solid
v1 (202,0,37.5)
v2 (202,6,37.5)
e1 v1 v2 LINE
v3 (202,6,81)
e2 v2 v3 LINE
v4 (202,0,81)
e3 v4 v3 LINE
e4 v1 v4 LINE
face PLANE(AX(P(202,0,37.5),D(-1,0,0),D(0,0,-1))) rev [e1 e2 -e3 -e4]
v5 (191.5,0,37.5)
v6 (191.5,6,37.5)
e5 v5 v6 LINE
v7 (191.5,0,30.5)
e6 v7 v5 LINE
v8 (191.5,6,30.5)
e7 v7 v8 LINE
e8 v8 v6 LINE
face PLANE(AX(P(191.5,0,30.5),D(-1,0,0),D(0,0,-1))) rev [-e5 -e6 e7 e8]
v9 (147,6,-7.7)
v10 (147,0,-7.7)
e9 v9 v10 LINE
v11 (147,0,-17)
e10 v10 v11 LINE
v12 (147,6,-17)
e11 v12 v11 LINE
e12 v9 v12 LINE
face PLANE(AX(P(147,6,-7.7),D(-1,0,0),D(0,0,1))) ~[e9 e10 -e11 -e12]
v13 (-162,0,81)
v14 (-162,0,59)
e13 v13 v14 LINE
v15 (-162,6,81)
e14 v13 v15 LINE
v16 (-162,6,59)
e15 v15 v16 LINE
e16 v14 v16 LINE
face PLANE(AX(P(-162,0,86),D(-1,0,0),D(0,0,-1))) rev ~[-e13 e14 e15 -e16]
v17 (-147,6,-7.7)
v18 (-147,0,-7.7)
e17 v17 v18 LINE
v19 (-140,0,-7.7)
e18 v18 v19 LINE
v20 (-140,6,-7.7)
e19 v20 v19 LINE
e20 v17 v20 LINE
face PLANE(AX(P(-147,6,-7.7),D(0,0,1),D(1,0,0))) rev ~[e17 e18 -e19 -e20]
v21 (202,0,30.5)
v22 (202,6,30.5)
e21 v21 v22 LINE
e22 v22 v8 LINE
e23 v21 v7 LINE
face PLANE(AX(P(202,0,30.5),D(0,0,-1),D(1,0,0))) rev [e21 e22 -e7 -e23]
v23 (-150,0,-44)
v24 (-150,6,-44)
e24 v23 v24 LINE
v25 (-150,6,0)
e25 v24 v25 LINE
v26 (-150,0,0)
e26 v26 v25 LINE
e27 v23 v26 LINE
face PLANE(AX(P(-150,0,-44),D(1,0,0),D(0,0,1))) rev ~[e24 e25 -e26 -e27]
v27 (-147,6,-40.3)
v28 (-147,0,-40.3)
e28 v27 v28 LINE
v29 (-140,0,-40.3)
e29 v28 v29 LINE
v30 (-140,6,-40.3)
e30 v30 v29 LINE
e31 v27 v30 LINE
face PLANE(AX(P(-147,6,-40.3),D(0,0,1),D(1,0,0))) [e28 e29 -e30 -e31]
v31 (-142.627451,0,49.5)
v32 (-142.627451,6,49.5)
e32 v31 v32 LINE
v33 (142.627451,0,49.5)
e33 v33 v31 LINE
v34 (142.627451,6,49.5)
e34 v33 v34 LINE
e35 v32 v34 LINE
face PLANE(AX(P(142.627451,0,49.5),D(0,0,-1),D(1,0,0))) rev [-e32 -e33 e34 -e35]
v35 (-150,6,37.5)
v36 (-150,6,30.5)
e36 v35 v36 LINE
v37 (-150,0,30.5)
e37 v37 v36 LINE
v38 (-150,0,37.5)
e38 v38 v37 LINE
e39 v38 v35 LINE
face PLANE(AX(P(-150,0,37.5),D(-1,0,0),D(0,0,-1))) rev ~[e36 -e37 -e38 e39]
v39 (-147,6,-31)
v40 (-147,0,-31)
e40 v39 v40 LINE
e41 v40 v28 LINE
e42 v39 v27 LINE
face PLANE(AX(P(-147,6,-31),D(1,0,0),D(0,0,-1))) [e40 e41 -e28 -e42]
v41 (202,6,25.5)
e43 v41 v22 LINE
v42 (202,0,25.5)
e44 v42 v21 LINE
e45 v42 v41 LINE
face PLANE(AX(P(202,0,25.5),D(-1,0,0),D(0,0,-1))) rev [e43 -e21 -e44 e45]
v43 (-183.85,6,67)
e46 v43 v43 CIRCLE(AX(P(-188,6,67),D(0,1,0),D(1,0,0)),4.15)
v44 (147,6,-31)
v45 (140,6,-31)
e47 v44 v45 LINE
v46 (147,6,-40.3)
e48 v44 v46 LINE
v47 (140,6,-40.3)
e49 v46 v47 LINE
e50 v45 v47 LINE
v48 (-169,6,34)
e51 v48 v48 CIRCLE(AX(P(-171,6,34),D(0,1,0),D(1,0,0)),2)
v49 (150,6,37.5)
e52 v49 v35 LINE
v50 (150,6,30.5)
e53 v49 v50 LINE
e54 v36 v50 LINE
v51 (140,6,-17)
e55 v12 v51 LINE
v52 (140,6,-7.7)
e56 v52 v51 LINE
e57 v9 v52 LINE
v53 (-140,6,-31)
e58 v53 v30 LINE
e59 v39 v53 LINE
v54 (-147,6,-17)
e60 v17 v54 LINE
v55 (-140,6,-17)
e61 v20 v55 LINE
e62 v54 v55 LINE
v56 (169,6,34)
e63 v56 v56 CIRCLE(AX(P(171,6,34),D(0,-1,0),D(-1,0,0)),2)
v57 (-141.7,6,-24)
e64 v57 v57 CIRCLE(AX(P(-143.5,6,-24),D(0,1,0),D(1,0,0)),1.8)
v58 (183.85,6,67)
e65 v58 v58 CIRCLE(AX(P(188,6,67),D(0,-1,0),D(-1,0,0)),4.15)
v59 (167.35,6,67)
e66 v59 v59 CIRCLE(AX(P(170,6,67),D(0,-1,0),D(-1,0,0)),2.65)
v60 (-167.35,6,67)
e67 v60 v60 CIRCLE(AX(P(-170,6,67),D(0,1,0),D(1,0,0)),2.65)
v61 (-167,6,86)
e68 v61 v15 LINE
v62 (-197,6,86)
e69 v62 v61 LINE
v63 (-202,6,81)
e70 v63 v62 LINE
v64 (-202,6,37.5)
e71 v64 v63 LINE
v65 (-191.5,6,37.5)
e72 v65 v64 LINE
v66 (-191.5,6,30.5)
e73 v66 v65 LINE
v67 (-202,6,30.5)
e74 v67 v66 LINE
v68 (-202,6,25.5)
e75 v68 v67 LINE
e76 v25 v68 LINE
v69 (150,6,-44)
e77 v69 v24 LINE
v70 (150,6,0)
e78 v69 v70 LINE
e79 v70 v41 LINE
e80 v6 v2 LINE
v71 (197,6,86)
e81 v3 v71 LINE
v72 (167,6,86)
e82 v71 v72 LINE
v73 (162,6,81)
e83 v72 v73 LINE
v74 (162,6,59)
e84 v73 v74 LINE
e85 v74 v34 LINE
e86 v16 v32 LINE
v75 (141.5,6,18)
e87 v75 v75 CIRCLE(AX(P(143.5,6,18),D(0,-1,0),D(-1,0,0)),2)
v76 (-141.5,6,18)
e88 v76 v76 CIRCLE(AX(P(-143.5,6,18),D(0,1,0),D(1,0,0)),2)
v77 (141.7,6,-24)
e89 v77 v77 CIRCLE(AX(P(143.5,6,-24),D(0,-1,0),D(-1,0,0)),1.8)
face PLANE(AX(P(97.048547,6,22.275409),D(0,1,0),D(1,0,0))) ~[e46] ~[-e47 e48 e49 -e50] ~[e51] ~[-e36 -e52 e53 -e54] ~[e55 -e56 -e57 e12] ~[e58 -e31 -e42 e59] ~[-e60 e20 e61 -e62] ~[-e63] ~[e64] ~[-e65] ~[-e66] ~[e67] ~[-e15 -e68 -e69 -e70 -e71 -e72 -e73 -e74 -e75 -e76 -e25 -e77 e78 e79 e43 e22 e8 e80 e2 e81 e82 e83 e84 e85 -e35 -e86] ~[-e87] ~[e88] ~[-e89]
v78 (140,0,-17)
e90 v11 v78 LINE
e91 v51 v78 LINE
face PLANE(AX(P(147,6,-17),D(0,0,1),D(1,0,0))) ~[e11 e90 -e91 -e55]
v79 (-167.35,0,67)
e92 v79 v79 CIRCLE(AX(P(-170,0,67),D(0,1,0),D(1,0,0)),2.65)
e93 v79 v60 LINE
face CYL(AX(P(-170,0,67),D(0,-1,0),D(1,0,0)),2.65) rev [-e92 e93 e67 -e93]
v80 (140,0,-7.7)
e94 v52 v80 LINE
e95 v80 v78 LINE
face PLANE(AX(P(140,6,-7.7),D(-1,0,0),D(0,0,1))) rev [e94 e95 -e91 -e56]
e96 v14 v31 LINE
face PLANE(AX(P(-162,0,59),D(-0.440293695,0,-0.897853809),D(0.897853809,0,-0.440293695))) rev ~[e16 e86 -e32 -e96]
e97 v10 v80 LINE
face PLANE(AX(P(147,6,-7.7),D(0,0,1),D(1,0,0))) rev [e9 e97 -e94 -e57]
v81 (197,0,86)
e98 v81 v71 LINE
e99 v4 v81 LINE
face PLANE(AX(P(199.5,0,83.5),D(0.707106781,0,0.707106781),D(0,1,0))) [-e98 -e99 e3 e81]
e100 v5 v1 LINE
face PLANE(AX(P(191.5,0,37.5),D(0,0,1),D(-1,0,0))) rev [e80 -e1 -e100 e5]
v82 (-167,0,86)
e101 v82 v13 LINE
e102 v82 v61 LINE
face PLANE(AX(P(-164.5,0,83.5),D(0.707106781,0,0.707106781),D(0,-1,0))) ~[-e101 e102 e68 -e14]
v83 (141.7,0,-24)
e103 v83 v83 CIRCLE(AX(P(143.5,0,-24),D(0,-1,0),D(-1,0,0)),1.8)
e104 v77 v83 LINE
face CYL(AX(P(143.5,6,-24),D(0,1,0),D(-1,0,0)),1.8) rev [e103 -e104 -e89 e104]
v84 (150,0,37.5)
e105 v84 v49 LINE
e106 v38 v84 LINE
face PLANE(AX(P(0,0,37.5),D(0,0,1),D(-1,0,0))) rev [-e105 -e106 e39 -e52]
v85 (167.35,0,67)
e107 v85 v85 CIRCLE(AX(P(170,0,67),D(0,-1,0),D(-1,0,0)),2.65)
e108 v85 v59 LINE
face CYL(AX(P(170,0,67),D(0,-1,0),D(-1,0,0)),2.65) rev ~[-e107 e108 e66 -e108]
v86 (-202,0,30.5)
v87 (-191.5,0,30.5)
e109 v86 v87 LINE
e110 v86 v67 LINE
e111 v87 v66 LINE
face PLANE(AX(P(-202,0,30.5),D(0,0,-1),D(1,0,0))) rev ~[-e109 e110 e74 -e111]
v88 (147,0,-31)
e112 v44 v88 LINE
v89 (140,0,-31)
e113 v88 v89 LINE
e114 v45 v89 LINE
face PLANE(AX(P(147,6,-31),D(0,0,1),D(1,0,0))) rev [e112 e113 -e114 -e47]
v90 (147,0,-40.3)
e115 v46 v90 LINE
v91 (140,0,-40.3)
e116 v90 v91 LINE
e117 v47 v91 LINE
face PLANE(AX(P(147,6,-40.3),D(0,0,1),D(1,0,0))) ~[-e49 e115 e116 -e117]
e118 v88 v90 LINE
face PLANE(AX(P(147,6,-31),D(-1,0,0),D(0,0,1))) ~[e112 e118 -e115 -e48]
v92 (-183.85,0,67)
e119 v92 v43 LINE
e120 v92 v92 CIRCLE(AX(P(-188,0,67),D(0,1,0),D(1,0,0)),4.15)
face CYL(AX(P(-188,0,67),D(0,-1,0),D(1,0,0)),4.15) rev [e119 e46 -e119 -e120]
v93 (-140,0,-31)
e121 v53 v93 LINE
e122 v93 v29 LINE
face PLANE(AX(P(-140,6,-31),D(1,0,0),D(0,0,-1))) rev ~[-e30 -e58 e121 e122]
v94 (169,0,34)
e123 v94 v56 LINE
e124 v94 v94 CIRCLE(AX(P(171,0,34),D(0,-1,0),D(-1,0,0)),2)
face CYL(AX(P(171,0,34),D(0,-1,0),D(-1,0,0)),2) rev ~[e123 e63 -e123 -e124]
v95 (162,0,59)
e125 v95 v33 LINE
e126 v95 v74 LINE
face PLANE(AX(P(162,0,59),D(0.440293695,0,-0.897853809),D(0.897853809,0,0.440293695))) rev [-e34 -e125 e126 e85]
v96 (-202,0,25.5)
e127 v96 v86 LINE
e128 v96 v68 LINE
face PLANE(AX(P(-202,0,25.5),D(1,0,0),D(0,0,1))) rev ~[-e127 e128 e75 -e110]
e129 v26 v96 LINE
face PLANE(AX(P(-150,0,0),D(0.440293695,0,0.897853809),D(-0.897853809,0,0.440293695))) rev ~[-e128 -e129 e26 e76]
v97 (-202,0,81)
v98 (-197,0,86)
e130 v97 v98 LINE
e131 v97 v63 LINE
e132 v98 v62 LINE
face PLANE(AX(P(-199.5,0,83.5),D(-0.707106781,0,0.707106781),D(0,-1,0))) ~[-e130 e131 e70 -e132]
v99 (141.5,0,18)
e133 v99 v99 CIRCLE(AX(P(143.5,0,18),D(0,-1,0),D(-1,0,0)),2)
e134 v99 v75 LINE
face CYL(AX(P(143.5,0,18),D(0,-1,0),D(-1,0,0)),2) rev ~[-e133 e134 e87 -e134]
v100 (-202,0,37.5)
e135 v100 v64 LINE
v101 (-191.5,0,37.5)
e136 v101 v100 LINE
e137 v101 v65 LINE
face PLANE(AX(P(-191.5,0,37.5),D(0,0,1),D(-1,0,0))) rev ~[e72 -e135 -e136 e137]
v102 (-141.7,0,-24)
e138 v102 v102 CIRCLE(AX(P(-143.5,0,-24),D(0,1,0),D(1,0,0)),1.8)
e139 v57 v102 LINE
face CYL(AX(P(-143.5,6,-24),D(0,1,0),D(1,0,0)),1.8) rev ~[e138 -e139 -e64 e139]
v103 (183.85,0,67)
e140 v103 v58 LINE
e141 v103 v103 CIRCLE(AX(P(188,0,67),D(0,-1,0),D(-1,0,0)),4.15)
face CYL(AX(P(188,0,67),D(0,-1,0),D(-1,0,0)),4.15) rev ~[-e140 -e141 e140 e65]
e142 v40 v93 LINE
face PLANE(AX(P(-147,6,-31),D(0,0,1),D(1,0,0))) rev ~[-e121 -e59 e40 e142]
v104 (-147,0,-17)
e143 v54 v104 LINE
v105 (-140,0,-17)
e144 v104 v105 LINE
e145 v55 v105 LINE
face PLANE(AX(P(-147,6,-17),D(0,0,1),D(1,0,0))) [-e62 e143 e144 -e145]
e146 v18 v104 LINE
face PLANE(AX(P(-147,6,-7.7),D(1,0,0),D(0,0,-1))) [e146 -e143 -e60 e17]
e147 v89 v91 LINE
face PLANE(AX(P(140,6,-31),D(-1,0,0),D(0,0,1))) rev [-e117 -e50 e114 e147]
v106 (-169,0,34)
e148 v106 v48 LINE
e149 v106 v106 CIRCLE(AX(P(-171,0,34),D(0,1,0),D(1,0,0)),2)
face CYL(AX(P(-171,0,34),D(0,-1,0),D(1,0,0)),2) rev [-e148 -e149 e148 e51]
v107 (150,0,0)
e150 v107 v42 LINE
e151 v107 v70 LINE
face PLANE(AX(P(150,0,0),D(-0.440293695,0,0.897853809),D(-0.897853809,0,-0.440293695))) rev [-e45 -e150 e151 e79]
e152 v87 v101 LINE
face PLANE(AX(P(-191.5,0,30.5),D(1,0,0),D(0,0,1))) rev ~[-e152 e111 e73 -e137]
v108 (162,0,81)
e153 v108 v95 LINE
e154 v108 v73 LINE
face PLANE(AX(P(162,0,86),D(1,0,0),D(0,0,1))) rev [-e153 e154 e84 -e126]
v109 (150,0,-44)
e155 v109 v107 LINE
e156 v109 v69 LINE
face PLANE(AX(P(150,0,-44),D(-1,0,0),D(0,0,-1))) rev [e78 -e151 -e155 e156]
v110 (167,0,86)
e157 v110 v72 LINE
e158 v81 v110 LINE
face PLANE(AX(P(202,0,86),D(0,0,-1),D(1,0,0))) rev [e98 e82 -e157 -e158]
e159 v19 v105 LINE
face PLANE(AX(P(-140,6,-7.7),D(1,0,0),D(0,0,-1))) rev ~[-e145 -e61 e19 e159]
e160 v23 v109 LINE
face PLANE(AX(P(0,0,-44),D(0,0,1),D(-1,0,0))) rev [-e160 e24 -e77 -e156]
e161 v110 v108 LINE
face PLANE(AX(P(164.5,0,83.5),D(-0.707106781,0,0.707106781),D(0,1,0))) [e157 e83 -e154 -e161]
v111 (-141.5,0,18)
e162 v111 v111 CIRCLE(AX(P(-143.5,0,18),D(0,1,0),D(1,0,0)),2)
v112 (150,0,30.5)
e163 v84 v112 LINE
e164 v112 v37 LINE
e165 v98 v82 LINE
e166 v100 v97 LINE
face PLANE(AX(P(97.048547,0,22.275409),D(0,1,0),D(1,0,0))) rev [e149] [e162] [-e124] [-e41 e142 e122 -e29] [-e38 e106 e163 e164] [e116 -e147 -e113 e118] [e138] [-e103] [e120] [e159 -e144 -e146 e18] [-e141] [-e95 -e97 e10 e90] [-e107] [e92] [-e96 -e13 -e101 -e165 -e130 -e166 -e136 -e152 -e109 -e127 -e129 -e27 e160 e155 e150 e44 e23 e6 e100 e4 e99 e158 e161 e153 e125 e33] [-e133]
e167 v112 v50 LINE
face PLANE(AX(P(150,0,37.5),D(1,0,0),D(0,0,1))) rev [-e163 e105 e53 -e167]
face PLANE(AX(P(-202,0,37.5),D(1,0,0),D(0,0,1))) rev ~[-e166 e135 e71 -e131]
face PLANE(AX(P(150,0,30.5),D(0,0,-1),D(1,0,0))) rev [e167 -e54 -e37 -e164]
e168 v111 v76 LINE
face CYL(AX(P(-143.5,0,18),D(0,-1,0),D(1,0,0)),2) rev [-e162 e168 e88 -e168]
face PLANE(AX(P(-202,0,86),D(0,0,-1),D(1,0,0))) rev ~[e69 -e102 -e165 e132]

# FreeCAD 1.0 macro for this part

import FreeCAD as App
import Part
import Sketcher
from FreeCAD import Vector
Q = App.Units.Quantity


def edges_at(feature, points):
    """Names of the edges that pass closest to the given points."""
    edges = feature.Shape.Edges
    near = lambda p: min(range(len(edges)), key=lambda i: edges[i].distToShape(Part.Vertex(*p))[0])
    return sorted({f"Edge{near(p) + 1}" for p in points})


def add_polygon(sketch, points):
    """Adds a closed chain of lines whose ends are joined by coincident constraints."""
    first, n = sketch.GeometryCount, len(points)
    for a, b in zip(points, points[1:] + points[:1]):
        sketch.addGeometry(Part.LineSegment(App.Vector(*a, 0), App.Vector(*b, 0)), False)
    for i in range(n):
        sketch.addConstraint(Sketcher.Constraint("Coincident", first + i, 2, first + (i + 1) % n, 1))

doc = App.newDocument("Part")
body = doc.addObject("PartDesign::Body", "Body")

# Sketch on XZ plane
sketch1 = body.newObject("Sketcher::SketchObject", "Sketch")
sketch1.AttachmentSupport = (doc.getObject("XZ_Plane"), [""])
sketch1.MapMode = "FlatFace"
add_polygon(sketch1, [(-150, 0), (-202, 25.5), (-202, 30.5), (-191.5, 30.5), (-191.5, 37.5), (-202, 37.5), (-202, 86), (-162, 86), (-162, 59), (-142.6, 49.5), (0, 49.5), (0, 37.5), (-150, 37.5), (-150, 30.5), (0, 30.5), (0, -44), (-150, -44)])  # lines 0-16
sketch1.addGeometry(Part.Circle(Vector(-188, 67, 0), Vector(0, 0, 1), 4.2), False)  # 17
sketch1.addGeometry(Part.Circle(Vector(-170, 67, 0), Vector(0, 0, 1), 2.6), False)  # 18
sketch1.addGeometry(Part.Circle(Vector(-171, 34, 0), Vector(0, 0, 1), 2), False)  # 19
sketch1.addGeometry(Part.Circle(Vector(-143.5, 18, 0), Vector(0, 0, 1), 2), False)  # 20
sketch1.addConstraint(Sketcher.Constraint("Vertical", 1))
sketch1.addConstraint(Sketcher.Constraint("Horizontal", 2))
sketch1.addConstraint(Sketcher.Constraint("Vertical", 3))
sketch1.addConstraint(Sketcher.Constraint("Horizontal", 4))
sketch1.addConstraint(Sketcher.Constraint("Vertical", 5))
sketch1.addConstraint(Sketcher.Constraint("Horizontal", 6))
sketch1.addConstraint(Sketcher.Constraint("Vertical", 7))
sketch1.addConstraint(Sketcher.Constraint("Horizontal", 9))
sketch1.addConstraint(Sketcher.Constraint("Vertical", 10))
sketch1.addConstraint(Sketcher.Constraint("Horizontal", 11))
sketch1.addConstraint(Sketcher.Constraint("Vertical", 12))
sketch1.addConstraint(Sketcher.Constraint("Horizontal", 13))
sketch1.addConstraint(Sketcher.Constraint("Vertical", 14))
sketch1.addConstraint(Sketcher.Constraint("Horizontal", 15))
sketch1.addConstraint(Sketcher.Constraint("Vertical", 16))
sketch1.addConstraint(Sketcher.Constraint("Equal", 19, 20))
sketch1.addConstraint(Sketcher.Constraint("PointOnObject", 9, 2, -2))
sketch1.addConstraint(Sketcher.Constraint("PointOnObject", 13, 2, -2))
sketch1.addConstraint(Sketcher.Constraint("PointOnObject", 16, 2, -1))
sketch1.addConstraint(Sketcher.Constraint("Parallel", 0, 8))
sketch1.addConstraint(Sketcher.Constraint("Horizontal", 17, 3, 18, 3))
sketch1.addConstraint(Sketcher.Constraint("Horizontal", 4, 2, 10, 2))
sketch1.addConstraint(Sketcher.Constraint("Horizontal", 2, 2, 12, 2))
sketch1.addConstraint(Sketcher.Constraint("Vertical", 1, 2, 4, 2))
sketch1.addConstraint(Sketcher.Constraint("Vertical", 12, 2, 15, 2))
sketch1.addConstraint(Sketcher.Constraint("Diameter", 19, Q("4 mm")))
sketch1.addConstraint(Sketcher.Constraint("Diameter", 17, Q("8.3 mm")))
sketch1.addConstraint(Sketcher.Constraint("Diameter", 18, Q("5.3 mm")))
sketch1.addConstraint(Sketcher.Constraint("DistanceX", 6, 1, 6, 2, Q("40 mm")))
sketch1.addConstraint(Sketcher.Constraint("DistanceX", 11, 2, 11, 1, Q("150 mm")))
sketch1.addConstraint(Sketcher.Constraint("DistanceY", 1, 1, 1, 2, Q("5 mm")))
sketch1.addConstraint(Sketcher.Constraint("DistanceY", 3, 1, 3, 2, Q("7 mm")))
sketch1.addConstraint(Sketcher.Constraint("DistanceY", 7, 2, 7, 1, Q("27 mm")))
sketch1.addConstraint(Sketcher.Constraint("DistanceY", 10, 2, 10, 1, Q("12 mm")))
sketch1.addConstraint(Sketcher.Constraint("DistanceY", 16, 1, 16, 2, Q("44 mm")))
sketch1.addConstraint(Sketcher.Constraint("DistanceX", 2, 1, 2, 2, Q("10.5 mm")))
sketch1.addConstraint(Sketcher.Constraint("DistanceY", 5, 1, 5, 2, Q("48.5 mm")))
sketch1.addConstraint(Sketcher.Constraint("DistanceY", 14, 2, 14, 1, Q("74.5 mm")))
sketch1.addConstraint(Sketcher.Constraint("DistanceX", 17, 3, -1, 1, Q("188 mm")))
sketch1.addConstraint(Sketcher.Constraint("DistanceY", -1, 1, 17, 3, Q("67 mm")))
sketch1.addConstraint(Sketcher.Constraint("DistanceX", 18, 3, -1, 1, Q("170 mm")))
sketch1.addConstraint(Sketcher.Constraint("DistanceX", 19, 3, -1, 1, Q("171 mm")))
sketch1.addConstraint(Sketcher.Constraint("DistanceY", -1, 1, 19, 3, Q("34 mm")))
sketch1.addConstraint(Sketcher.Constraint("DistanceY", -1, 1, 20, 3, Q("18 mm")))
sketch1.addConstraint(Sketcher.Constraint("DistanceX", 0, 2, -1, 1, Q("202 mm")))
sketch1.addConstraint(Sketcher.Constraint("DistanceX", 20, 3, -1, 1, Q("143.5 mm")))
pad1 = body.newObject("PartDesign::Pad", "Pad")
pad1.Profile = sketch1
pad1.Length = 6
pad1.Reversed = True
doc.recompute()

chamfer = body.newObject("PartDesign::Chamfer", "Chamfer")
chamfer.Base = (pad1, edges_at(pad1, [(-162, 3, 86), (-202, 3, 86)]))
chamfer.Size = 5

# Sketch on XZ plane
sketch2 = body.newObject("Sketcher::SketchObject", "Sketch001")
sketch2.AttachmentSupport = (doc.getObject("XZ_Plane"), [""])
sketch2.MapMode = "FlatFace"
sketch2.AttachmentOffset = App.Placement(Vector(0, 0, -6), App.Rotation())
sketch2.addGeometry(Part.Circle(Vector(-143.5, -24, 0), Vector(0, 0, 1), 1.8), False)  # 0
add_polygon(sketch2, [(-147, -40.3), (-147, -31), (-140, -31), (-140, -40.3)])  # lines 1-4
add_polygon(sketch2, [(-147, -17), (-147, -7.7), (-140, -7.7), (-140, -17)])  # lines 5-8
sketch2.addConstraint(Sketcher.Constraint("Vertical", 1))
sketch2.addConstraint(Sketcher.Constraint("Horizontal", 2))
sketch2.addConstraint(Sketcher.Constraint("Vertical", 3))
sketch2.addConstraint(Sketcher.Constraint("Horizontal", 4))
sketch2.addConstraint(Sketcher.Constraint("Vertical", 5))
sketch2.addConstraint(Sketcher.Constraint("Horizontal", 6))
sketch2.addConstraint(Sketcher.Constraint("Vertical", 7))
sketch2.addConstraint(Sketcher.Constraint("Horizontal", 8))
sketch2.addConstraint(Sketcher.Constraint("Vertical", 4, 2, 5, 2))
sketch2.addConstraint(Sketcher.Constraint("Vertical", 3, 2, 6, 2))
sketch2.addConstraint(Sketcher.Constraint("Equal", 3, 5))
sketch2.addConstraint(Sketcher.Constraint("Diameter", 0, Q("3.6 mm")))
sketch2.addConstraint(Sketcher.Constraint("DistanceX", 2, 1, 2, 2, Q("7 mm")))
sketch2.addConstraint(Sketcher.Constraint("DistanceY", 1, 1, 1, 2, Q("9.3 mm")))
sketch2.addConstraint(Sketcher.Constraint("DistanceY", 0, 3, -1, 1, Q("24 mm")))
sketch2.addConstraint(Sketcher.Constraint("DistanceX", 1, 2, -1, 1, Q("147 mm")))
sketch2.addConstraint(Sketcher.Constraint("DistanceY", 1, 2, -1, 1, Q("31 mm")))
sketch2.addConstraint(Sketcher.Constraint("DistanceY", 7, 2, -1, 1, Q("17 mm")))
sketch2.addConstraint(Sketcher.Constraint("DistanceX", 0, 3, -1, 1, Q("143.5 mm")))
pocket1 = body.newObject("PartDesign::Pocket", "Pocket")
pocket1.Profile = sketch2
pocket1.Length = 6
pocket1.Reversed = True
body2 = doc.addObject("PartDesign::Body", "Body001")
doc.recompute()

body2.BaseFeature = body
doc.recompute()

mirroring = doc.addObject("Part::Mirroring", "Mirroring")
mirroring.Source = body
mirroring.Base = Vector(0, 6, 30.5)
mirroring.Normal = Vector(-1, 0, 0)
body3 = doc.addObject("PartDesign::Body", "Body002")
body3.BaseFeature = mirroring
boolean = body2.newObject("PartDesign::Boolean", "Boolean")
boolean.Type = "Fuse"
boolean.addObjects([body3])
doc.recompute()
mirroring.Visibility = False

doc.recompute()
